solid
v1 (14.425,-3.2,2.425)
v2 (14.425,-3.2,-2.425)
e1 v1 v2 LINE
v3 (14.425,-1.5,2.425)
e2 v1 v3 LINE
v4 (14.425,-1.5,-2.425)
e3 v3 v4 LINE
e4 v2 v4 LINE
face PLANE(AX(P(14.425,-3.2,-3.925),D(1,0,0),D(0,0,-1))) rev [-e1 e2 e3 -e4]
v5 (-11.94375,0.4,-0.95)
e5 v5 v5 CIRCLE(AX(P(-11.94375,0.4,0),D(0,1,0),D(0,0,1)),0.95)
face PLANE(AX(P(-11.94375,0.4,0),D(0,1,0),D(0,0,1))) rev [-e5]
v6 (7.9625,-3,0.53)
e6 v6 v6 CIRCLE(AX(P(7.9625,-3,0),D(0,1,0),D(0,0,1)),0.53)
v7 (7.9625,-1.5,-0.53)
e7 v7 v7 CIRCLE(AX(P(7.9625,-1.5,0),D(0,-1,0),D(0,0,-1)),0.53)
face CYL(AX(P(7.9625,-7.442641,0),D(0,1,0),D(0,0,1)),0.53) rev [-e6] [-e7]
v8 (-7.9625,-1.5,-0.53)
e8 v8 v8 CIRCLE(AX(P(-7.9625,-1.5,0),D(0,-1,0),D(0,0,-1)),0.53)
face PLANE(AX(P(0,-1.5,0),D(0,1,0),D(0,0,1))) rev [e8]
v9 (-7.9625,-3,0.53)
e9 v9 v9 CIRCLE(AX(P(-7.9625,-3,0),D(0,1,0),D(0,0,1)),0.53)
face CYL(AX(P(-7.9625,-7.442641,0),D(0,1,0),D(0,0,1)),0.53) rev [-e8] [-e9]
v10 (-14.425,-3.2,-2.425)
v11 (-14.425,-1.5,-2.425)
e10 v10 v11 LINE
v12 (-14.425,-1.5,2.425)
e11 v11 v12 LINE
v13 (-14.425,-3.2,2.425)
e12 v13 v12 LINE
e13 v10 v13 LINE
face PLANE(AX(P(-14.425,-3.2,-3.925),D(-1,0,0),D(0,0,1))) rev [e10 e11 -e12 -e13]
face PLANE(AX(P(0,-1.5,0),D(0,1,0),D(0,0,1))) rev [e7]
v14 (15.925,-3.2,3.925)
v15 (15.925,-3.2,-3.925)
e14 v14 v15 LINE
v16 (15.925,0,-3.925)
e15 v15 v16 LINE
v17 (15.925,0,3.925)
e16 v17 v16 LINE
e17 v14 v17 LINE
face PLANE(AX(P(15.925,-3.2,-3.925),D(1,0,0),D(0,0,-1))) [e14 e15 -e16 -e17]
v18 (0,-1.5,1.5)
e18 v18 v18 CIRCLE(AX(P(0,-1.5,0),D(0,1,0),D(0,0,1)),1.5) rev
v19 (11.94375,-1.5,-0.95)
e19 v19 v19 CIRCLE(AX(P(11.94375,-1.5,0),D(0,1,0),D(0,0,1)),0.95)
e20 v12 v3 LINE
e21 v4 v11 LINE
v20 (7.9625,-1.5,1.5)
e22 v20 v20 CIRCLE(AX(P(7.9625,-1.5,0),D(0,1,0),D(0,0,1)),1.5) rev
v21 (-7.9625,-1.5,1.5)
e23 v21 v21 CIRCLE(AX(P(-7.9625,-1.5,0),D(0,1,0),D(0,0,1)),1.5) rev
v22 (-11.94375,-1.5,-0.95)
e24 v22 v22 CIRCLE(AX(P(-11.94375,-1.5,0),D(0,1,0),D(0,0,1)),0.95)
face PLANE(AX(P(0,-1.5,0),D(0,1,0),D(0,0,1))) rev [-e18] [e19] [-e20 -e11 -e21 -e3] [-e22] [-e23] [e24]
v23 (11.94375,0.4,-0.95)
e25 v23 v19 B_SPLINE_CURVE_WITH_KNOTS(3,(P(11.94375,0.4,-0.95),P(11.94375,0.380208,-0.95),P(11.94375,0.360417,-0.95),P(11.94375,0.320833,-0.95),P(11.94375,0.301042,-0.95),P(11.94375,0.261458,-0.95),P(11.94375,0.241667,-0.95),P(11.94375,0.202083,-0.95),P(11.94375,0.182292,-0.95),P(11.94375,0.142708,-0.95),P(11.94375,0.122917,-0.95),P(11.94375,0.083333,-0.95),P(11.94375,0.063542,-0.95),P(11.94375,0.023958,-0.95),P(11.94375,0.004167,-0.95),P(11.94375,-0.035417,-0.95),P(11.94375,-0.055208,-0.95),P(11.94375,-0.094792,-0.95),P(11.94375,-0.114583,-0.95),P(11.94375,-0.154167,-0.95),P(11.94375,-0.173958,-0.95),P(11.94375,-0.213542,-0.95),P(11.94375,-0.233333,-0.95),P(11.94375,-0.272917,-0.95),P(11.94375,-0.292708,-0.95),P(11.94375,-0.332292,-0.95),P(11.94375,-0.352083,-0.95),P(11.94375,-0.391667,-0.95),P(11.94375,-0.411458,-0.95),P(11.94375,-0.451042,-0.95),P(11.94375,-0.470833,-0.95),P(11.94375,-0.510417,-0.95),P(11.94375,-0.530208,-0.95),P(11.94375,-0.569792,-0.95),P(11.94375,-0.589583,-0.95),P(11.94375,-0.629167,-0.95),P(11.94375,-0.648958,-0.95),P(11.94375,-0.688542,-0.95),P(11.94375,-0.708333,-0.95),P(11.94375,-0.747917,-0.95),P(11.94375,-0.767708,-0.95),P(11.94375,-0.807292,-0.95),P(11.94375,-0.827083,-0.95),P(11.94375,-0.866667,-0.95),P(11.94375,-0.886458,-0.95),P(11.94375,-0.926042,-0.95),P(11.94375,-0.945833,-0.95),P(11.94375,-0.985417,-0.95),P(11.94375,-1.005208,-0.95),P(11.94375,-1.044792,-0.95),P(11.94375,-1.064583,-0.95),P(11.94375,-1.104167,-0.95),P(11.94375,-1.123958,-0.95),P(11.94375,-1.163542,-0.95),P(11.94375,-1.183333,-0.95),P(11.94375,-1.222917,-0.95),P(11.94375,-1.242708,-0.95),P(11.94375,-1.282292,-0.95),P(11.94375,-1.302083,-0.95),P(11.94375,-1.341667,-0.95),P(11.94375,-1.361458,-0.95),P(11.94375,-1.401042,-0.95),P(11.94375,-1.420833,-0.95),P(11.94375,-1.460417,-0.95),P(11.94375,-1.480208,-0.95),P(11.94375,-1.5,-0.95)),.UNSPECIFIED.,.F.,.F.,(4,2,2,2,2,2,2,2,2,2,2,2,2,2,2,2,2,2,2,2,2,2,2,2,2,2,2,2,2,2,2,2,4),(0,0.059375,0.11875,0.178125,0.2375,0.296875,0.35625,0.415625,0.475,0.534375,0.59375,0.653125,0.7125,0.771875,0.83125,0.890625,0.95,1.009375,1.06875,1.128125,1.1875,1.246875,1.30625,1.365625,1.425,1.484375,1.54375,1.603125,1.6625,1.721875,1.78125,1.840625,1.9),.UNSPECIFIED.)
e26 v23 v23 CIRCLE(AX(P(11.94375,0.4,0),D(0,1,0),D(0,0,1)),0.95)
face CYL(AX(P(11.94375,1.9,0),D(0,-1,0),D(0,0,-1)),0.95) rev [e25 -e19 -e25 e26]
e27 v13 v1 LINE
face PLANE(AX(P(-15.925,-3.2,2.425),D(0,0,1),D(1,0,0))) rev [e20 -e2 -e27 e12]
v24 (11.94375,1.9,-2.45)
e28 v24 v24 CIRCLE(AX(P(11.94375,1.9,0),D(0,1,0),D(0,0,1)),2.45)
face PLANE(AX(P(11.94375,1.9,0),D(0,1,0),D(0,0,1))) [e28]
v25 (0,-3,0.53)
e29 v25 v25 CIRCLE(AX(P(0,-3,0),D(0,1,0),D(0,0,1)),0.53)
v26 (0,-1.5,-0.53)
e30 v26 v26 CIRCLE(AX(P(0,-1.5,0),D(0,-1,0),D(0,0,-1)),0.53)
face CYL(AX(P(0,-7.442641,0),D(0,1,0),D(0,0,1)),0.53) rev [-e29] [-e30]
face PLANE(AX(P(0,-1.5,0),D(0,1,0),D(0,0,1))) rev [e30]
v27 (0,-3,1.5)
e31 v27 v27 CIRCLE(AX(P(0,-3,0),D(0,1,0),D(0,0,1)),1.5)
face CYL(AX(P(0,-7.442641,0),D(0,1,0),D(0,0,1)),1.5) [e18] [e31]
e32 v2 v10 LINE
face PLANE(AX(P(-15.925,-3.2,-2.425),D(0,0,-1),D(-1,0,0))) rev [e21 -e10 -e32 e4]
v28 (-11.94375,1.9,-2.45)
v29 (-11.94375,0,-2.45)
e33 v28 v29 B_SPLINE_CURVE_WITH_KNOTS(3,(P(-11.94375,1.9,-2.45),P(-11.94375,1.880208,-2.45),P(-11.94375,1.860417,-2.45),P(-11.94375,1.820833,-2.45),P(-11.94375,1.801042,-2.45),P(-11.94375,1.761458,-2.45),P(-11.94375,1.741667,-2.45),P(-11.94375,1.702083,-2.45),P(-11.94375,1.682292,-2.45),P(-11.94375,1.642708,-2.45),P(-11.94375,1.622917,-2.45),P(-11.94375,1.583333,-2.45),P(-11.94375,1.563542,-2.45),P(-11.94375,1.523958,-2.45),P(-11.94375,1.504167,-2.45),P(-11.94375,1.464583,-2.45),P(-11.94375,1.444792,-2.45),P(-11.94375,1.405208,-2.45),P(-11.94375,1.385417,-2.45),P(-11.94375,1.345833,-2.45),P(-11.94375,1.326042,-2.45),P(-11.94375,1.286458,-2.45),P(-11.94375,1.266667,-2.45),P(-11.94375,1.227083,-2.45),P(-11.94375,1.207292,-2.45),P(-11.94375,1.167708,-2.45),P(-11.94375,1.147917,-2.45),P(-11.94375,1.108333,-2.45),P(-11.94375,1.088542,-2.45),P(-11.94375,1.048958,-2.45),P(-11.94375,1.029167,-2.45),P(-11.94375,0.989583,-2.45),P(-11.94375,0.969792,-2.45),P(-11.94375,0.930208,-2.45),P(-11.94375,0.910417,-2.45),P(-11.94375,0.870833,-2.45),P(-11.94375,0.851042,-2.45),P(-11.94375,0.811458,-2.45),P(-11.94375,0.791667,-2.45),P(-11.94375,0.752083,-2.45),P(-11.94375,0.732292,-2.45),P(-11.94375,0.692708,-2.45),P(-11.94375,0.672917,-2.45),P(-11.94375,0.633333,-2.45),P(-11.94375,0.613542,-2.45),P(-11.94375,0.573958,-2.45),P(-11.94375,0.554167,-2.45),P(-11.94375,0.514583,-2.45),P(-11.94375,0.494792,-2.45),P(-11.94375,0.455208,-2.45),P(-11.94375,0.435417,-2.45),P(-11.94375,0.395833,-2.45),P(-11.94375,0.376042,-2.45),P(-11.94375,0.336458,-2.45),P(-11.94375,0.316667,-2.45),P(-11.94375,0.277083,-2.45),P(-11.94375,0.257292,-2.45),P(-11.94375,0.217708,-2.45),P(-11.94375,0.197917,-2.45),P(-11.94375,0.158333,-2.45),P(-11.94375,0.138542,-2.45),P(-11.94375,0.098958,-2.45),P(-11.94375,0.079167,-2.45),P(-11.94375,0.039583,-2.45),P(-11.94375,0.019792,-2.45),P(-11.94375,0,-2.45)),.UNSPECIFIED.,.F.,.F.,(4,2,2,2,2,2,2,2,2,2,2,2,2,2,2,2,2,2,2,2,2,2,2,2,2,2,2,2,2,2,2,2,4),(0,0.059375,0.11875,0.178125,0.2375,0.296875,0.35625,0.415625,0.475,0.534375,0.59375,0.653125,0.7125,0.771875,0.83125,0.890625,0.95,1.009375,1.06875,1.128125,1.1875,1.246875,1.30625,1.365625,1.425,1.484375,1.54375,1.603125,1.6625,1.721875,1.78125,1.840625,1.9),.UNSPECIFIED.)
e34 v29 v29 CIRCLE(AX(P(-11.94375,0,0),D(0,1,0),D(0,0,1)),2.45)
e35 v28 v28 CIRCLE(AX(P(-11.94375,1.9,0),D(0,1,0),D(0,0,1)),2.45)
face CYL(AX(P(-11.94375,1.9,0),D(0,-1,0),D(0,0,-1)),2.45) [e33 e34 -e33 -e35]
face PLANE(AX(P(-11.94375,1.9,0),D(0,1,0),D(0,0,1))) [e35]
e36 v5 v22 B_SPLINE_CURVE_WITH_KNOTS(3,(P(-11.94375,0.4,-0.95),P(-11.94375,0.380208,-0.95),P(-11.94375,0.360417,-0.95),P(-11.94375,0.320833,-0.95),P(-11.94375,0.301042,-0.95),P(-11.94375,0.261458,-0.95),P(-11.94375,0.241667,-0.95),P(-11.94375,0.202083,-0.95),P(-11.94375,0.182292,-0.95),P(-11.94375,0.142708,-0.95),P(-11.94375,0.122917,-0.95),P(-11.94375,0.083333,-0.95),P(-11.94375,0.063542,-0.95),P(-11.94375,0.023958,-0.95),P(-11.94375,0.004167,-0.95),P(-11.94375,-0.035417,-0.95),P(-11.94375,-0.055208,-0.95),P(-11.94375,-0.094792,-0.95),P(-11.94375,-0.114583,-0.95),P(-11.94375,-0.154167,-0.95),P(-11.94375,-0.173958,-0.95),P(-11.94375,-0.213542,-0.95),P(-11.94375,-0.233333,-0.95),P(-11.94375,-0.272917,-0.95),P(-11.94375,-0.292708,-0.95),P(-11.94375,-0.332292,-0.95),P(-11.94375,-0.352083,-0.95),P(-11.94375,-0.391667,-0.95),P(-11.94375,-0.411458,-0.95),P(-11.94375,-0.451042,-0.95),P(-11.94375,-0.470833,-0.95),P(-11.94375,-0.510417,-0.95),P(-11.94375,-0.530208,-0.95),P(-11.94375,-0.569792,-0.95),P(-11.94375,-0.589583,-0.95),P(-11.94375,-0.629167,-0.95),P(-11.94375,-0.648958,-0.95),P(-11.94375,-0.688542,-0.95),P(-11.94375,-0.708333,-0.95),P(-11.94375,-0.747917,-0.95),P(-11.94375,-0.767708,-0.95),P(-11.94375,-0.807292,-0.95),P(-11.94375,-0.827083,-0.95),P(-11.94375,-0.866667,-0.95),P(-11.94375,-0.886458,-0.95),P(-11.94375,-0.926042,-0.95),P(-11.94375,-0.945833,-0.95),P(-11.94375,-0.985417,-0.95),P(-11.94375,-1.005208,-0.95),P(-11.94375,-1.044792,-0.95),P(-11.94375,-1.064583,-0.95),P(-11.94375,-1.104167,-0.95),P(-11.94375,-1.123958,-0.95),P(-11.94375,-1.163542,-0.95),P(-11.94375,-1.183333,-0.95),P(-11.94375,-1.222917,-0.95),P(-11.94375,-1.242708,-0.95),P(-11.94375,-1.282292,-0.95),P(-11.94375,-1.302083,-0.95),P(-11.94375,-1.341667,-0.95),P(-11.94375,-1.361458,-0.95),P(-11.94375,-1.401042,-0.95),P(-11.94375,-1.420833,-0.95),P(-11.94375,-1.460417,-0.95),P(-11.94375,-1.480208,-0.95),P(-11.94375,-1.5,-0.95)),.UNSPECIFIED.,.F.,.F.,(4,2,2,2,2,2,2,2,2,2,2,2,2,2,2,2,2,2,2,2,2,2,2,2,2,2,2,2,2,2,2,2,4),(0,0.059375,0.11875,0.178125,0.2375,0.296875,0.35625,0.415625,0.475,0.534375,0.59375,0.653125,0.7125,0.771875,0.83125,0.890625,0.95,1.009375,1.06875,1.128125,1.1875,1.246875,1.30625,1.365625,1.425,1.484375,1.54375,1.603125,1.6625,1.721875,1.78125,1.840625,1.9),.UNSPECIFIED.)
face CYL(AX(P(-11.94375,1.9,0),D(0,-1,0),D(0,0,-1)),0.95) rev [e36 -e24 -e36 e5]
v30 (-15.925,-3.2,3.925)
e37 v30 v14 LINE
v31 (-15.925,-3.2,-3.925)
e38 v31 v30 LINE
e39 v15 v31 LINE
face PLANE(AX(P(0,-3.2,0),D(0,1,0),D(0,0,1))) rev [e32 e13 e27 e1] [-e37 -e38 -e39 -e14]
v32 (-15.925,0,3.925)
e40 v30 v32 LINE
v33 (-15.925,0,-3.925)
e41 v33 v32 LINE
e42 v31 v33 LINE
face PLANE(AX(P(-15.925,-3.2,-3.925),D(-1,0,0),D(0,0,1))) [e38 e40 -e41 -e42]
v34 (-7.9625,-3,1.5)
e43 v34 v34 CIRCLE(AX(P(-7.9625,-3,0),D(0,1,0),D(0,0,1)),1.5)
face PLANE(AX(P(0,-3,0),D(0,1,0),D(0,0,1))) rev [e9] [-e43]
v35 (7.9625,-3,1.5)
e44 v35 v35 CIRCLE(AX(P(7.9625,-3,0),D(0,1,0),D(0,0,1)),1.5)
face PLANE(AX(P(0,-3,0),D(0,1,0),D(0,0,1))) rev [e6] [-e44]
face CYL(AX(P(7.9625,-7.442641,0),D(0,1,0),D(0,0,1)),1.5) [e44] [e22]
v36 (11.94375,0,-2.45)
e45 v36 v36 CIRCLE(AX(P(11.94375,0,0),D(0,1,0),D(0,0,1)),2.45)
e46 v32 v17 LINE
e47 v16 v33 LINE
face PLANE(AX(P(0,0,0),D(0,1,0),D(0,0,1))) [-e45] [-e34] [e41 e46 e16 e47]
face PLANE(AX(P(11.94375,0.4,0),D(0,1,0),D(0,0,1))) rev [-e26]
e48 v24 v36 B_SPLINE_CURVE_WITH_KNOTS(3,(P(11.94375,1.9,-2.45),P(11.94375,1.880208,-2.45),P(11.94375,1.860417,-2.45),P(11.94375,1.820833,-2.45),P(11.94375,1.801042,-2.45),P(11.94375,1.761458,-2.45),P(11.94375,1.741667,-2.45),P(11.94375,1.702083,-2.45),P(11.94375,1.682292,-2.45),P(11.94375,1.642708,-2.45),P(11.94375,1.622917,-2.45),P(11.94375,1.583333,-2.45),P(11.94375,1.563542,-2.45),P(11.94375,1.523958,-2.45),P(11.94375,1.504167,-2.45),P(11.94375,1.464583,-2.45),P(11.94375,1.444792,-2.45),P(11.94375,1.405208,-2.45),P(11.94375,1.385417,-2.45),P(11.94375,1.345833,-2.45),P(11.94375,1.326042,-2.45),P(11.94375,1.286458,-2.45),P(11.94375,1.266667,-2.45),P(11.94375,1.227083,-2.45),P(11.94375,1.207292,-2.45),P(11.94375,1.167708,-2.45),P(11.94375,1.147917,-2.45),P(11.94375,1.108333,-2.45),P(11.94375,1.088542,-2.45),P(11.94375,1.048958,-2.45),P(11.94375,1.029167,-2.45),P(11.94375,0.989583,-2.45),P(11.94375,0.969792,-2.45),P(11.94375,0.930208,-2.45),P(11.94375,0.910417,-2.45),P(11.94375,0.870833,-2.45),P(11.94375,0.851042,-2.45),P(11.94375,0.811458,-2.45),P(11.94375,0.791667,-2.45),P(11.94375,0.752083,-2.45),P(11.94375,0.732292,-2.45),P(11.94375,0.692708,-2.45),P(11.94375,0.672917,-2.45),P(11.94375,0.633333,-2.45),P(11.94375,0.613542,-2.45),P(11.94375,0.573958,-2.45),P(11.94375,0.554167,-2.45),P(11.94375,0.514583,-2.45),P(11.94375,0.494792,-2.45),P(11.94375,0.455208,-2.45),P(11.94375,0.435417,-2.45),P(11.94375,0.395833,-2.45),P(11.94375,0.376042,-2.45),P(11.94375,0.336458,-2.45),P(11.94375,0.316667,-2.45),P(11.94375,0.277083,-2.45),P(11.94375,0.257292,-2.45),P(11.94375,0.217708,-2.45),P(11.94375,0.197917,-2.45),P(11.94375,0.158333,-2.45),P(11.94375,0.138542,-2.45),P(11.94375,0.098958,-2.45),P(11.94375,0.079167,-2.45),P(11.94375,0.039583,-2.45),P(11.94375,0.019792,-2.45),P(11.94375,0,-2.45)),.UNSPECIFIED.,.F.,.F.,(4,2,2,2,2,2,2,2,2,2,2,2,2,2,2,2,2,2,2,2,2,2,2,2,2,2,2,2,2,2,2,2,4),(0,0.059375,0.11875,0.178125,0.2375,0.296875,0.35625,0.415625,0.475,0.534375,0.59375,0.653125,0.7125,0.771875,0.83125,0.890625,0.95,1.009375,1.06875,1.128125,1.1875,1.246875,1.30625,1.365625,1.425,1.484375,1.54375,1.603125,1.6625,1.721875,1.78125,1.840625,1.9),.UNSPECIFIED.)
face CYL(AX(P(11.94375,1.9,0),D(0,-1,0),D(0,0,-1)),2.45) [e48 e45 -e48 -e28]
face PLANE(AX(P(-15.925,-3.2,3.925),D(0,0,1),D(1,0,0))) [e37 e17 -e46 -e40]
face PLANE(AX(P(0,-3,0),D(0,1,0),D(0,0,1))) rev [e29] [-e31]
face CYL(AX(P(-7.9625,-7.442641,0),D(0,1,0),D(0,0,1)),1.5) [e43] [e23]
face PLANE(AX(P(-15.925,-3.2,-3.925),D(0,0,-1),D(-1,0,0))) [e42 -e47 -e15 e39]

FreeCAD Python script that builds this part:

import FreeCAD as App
import Part
import Sketcher
Q = App.Units.Quantity


def faces_at(feature, points):
    """Names of the faces that lie closest to the given points."""
    faces = feature.Shape.Faces
    near = lambda p: min(range(len(faces)), key=lambda i: faces[i].distToShape(Part.Vertex(*p))[0])
    return sorted({f"Face{near(p) + 1}" for p in points})


def add_polygon(sketch, points):
    """Adds a closed chain of lines whose ends are joined by coincident constraints."""
    first, n = sketch.GeometryCount, len(points)
    for a, b in zip(points, points[1:] + points[:1]):
        sketch.addGeometry(Part.LineSegment(App.Vector(*a, 0), App.Vector(*b, 0)), False)
    for i in range(n):
        sketch.addConstraint(Sketcher.Constraint("Coincident", first + i, 2, first + (i + 1) % n, 1))

doc = App.newDocument("Part")
body = doc.addObject("PartDesign::Body", "Body")

# Sketch on XZ plane
sketch1 = body.newObject("Sketcher::SketchObject", "Sketch")
sketch1.AttachmentSupport = (doc.getObject("XZ_Plane"), [""])
sketch1.MapMode = "FlatFace"
add_polygon(sketch1, [(-16, -4), (-16, 4), (16, 4), (16, -4)])  # lines 0-3
sketch1.addConstraint(Sketcher.Constraint("Vertical", 0))
sketch1.addConstraint(Sketcher.Constraint("Horizontal", 1))
sketch1.addConstraint(Sketcher.Constraint("Vertical", 2))
sketch1.addConstraint(Sketcher.Constraint("Horizontal", 3))
sketch1.addConstraint(Sketcher.Constraint("Symmetric", 0, 2, 2, 2, -1, 1))
sketch1.addConstraint(Sketcher.Constraint("DistanceX", 1, 1, 1, 2, Q("31.85 mm")))
sketch1.addConstraint(Sketcher.Constraint("DistanceY", 0, 1, 0, 2, Q("7.85 mm")))
pad1 = body.newObject("PartDesign::Pad", "Pad")
pad1.Profile = sketch1
pad1.Length = 3.2

# Sketch on XZ plane
sketch2 = body.newObject("Sketcher::SketchObject", "Sketch001")
sketch2.AttachmentSupport = (doc.getObject("XZ_Plane"), [""])
sketch2.MapMode = "FlatFace"
sketch2.addGeometry(Part.Circle(App.Vector(11.9, 0, 0), App.Vector(0, 0, 1), 2.5), False)
sketch2.addGeometry(Part.Circle(App.Vector(-11.9, 0, 0), App.Vector(0, 0, 1), 2.5), False)
sketch2.addConstraint(Sketcher.Constraint("Equal", 0, 1))
sketch2.addConstraint(Sketcher.Constraint("Symmetric", 0, 3, 1, 3, -1, 1))
sketch2.addConstraint(Sketcher.Constraint("PointOnObject", 0, 3, -1))
sketch2.addConstraint(Sketcher.Constraint("Diameter", 0, Q("4.9 mm")))
sketch2.addConstraint(Sketcher.Constraint("DistanceX", 1, 3, 0, 3, Q("23.8875 mm")))
pad2 = body.newObject("PartDesign::Pad", "Pad001")
pad2.Profile = sketch2
pad2.Length = 1.9
pad2.Reversed = True
doc.recompute()

thickness = body.newObject("PartDesign::Thickness", "Thickness")
thickness.Base = (pad2, faces_at(pad2, [(0, -3.2, 0)]))
thickness.Value = 1.5
thickness.Reversed = True
thickness.Join = "Intersection"

# Sketch on XZ plane
sketch3 = body.newObject("Sketcher::SketchObject", "Sketch002")
sketch3.AttachmentSupport = (doc.getObject("XZ_Plane"), [""])
sketch3.MapMode = "FlatFace"
sketch3.AttachmentOffset = App.Placement(App.Vector(0, 0, 1.5), App.Rotation())
sketch3.addGeometry(Part.Circle(App.Vector(-8, 0, 0), App.Vector(0, 0, 1), 1.5), False)
sketch3.addGeometry(Part.Circle(App.Vector(-8, 0, 0), App.Vector(0, 0, 1), 0.5), False)
sketch3.addGeometry(Part.Circle(App.Vector(0, 0, 0), App.Vector(0, 0, 1), 1.5), False)
sketch3.addGeometry(Part.Circle(App.Vector(0, 0, 0), App.Vector(0, 0, 1), 0.5), False)
sketch3.addGeometry(Part.Circle(App.Vector(8, 0, 0), App.Vector(0, 0, 1), 1.5), False)
sketch3.addGeometry(Part.Circle(App.Vector(8, 0, 0), App.Vector(0, 0, 1), 0.5), False)
sketch3.addConstraint(Sketcher.Constraint("Coincident", 2, 3, -1, 1))
sketch3.addConstraint(Sketcher.Constraint("Coincident", 3, 3, -1, 1))
sketch3.addConstraint(Sketcher.Constraint("Coincident", 1, 3, 0, 3))
sketch3.addConstraint(Sketcher.Constraint("Coincident", 5, 3, 4, 3))
sketch3.addConstraint(Sketcher.Constraint("Equal", 0, 2))
sketch3.addConstraint(Sketcher.Constraint("Equal", 1, 3))
sketch3.addConstraint(Sketcher.Constraint("Equal", 2, 4))
sketch3.addConstraint(Sketcher.Constraint("Equal", 3, 5))
sketch3.addConstraint(Sketcher.Constraint("Symmetric", 0, 3, 4, 3, -1, 1))
sketch3.addConstraint(Sketcher.Constraint("PointOnObject", 0, 3, -1))
sketch3.addConstraint(Sketcher.Constraint("Diameter", 0, Q("3 mm")))
sketch3.addConstraint(Sketcher.Constraint("Diameter", 1, Q("1.06 mm")))
sketch3.addConstraint(Sketcher.Constraint("DistanceX", 0, 3, 4, 3, Q("15.925 mm")))
pad3 = body.newObject("PartDesign::Pad", "Pad002")
pad3.Profile = sketch3
pad3.Length = 1.5

doc.recompute()
